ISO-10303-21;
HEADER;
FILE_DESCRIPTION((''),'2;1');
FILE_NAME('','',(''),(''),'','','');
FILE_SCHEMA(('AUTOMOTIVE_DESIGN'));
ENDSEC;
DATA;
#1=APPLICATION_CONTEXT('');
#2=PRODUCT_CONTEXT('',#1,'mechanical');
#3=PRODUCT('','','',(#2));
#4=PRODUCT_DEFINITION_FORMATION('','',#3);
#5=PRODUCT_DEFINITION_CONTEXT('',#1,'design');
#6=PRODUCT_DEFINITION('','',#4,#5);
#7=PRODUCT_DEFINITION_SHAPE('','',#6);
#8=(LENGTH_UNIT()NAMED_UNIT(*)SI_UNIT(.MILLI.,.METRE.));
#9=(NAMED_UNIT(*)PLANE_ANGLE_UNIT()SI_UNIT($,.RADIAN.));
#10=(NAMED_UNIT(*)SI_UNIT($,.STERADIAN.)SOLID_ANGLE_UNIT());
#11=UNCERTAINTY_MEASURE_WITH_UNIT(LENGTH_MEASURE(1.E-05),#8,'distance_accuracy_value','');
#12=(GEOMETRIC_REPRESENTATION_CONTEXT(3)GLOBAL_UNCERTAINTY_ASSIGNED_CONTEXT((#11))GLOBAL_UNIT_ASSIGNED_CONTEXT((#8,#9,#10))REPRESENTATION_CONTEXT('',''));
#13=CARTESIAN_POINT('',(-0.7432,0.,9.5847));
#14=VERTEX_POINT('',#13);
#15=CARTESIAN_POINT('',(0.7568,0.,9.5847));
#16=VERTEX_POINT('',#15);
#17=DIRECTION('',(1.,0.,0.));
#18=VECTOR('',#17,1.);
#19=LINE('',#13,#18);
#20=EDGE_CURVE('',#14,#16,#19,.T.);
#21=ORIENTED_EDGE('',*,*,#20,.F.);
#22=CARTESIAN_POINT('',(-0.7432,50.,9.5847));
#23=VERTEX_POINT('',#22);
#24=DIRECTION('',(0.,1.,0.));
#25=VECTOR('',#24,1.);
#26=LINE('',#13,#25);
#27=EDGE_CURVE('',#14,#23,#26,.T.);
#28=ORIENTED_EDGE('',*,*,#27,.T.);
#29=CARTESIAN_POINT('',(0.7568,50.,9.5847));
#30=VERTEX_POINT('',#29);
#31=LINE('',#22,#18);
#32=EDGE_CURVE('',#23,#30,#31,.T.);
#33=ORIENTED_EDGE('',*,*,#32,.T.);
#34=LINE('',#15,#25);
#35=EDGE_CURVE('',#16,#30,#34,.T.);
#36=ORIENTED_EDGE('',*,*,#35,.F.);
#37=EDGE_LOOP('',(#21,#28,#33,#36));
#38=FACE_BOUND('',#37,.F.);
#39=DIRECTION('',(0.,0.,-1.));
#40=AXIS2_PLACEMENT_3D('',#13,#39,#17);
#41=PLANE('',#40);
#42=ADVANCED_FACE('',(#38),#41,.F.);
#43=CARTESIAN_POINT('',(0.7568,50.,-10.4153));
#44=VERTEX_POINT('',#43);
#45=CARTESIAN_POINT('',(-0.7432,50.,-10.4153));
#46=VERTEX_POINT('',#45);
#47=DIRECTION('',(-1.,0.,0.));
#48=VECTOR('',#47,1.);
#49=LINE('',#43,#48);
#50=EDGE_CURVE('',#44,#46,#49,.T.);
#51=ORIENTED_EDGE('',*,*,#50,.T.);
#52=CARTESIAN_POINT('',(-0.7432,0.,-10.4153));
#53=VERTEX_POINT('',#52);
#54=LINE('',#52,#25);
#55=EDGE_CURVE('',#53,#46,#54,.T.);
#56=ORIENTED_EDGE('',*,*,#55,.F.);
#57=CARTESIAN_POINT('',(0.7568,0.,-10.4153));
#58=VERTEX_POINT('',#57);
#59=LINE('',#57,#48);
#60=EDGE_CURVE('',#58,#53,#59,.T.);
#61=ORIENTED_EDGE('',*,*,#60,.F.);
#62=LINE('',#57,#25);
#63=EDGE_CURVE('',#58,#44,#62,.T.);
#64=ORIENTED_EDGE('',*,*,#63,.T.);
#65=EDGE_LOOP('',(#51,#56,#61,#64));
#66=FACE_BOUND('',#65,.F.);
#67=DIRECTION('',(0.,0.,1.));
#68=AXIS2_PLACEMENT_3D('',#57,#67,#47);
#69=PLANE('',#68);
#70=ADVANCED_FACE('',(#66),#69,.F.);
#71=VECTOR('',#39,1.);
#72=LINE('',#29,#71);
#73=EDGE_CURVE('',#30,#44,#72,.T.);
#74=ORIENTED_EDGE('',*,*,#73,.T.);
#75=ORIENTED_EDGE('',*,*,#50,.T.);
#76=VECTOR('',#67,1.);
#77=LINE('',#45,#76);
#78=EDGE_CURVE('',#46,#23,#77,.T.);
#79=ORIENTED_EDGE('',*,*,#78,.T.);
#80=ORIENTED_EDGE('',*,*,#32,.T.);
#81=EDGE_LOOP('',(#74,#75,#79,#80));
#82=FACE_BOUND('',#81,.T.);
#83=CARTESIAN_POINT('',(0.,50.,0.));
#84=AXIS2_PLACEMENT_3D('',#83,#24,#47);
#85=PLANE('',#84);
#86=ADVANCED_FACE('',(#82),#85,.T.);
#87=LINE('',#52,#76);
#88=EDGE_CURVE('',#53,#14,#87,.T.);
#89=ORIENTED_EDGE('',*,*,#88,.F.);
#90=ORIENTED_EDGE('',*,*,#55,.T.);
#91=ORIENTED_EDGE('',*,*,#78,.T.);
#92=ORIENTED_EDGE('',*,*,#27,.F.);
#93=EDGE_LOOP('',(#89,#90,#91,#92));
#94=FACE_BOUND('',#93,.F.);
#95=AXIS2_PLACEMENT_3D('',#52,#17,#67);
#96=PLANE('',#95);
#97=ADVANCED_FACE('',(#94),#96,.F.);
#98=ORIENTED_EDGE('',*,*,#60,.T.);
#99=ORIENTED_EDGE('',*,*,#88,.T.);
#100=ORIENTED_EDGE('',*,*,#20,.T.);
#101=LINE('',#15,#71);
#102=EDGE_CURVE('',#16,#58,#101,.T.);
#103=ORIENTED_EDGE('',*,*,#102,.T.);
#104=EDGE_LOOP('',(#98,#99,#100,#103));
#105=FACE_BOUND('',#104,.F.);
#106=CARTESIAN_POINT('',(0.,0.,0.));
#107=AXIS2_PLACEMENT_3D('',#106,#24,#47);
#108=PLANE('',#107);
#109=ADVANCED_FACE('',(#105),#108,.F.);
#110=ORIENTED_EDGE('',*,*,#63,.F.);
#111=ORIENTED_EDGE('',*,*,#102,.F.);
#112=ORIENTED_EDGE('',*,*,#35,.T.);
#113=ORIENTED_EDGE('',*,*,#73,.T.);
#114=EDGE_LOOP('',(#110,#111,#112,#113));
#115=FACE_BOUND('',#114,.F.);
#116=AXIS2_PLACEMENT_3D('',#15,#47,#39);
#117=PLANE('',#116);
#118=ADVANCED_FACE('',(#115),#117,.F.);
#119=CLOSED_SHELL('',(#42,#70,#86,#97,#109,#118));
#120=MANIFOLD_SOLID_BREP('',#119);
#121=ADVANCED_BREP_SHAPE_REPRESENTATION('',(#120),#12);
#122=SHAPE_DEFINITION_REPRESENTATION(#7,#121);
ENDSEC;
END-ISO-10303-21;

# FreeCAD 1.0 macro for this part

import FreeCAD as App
import Part
import Sketcher

doc = App.newDocument("Part")
body = doc.addObject("PartDesign::Body", "Body")

sketch1 = body.newObject("Sketcher::SketchObject", "Sketch")
sketch1.AttachmentSupport = (doc.getObject("XZ_Plane"), [""])
sketch1.MapMode = "FlatFace"
sketch1.addGeometry([
    Part.LineSegment(App.Vector(-0.7, -10.4, 0), App.Vector(-0.7, 9.6, 0)),
    Part.LineSegment(App.Vector(-0.7, 9.6, 0), App.Vector(0.8, 9.6, 0)),
    Part.LineSegment(App.Vector(0.8, 9.6, 0), App.Vector(0.8, -10.4, 0)),
    Part.LineSegment(App.Vector(0.8, -10.4, 0), App.Vector(-0.7, -10.4, 0)),
], False)
sketch1.addConstraint([
    Sketcher.Constraint("Coincident", 0, 2, 1, 1),
    Sketcher.Constraint("Coincident", 1, 2, 2, 1),
    Sketcher.Constraint("Coincident", 2, 2, 3, 1),
    Sketcher.Constraint("Coincident", 3, 2, 0, 1),
    Sketcher.Constraint("Vertical", 0),
    Sketcher.Constraint("Horizontal", 1),
    Sketcher.Constraint("Vertical", 2),
    Sketcher.Constraint("Horizontal", 3),
    Sketcher.Constraint("DistanceY", 0, 1, 0, 2, 20.0),
    Sketcher.Constraint("DistanceX", 1, 1, 1, 2, 1.5),
    Sketcher.Constraint("DistanceX", 0, 2, -1, 1, 0.7432),
    Sketcher.Constraint("DistanceY", -1, 1, 0, 2, 9.5847),
])
pad1 = body.newObject("PartDesign::Pad", "Pad")
pad1.Profile = sketch1
pad1.Length = 50
pad1.Reversed = True

doc.recompute()
